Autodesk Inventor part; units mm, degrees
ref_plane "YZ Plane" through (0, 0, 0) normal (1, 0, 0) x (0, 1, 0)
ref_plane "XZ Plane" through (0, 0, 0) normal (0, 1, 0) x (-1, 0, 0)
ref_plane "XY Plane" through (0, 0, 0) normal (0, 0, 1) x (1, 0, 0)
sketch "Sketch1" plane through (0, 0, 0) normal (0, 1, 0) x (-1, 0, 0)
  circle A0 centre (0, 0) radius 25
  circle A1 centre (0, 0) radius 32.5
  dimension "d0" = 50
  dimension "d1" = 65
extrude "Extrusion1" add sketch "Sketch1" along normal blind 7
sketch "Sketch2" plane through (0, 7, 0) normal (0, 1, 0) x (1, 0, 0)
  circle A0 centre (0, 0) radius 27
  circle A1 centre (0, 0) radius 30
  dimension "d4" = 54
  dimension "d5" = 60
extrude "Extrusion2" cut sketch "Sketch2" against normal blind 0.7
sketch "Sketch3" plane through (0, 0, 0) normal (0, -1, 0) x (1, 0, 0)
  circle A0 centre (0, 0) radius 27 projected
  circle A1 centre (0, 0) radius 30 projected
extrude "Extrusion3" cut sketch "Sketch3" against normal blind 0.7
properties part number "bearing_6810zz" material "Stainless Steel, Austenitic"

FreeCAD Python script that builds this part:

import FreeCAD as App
import Part
import Sketcher

V = App.Vector
Q = App.Units.Quantity

doc = App.newDocument("Part")
body = doc.addObject("PartDesign::Body", "Body")

# Sketch on XZ plane
sketch1 = body.newObject("Sketcher::SketchObject", "Sketch")
sketch1.AttachmentSupport = (doc.getObject("XZ_Plane"), [""])
sketch1.MapMode = "FlatFace"
sketch1.addGeometry([
    Part.Circle(V(0, 0, 0), V(0, 0, 1), 32.5),
    Part.Circle(V(0, 0, 0), V(0, 0, 1), 25),
], False)
sketch1.addConstraint([
    Sketcher.Constraint("Coincident", 0, 3, -1, 1),
    Sketcher.Constraint("Coincident", 1, 3, -1, 1),
    Sketcher.Constraint("Diameter", 0, Q("65 mm")),
    Sketcher.Constraint("Diameter", 1, Q("50 mm")),
])
pad1 = body.newObject("PartDesign::Pad", "Pad")
pad1.Profile = sketch1
pad1.Length = 7
pad1.Reversed = True

# Sketch on XZ plane
sketch2 = body.newObject("Sketcher::SketchObject", "Sketch001")
sketch2.AttachmentSupport = (doc.getObject("XZ_Plane"), [""])
sketch2.MapMode = "FlatFace"
sketch2.AttachmentOffset = App.Placement(V(0, 0, -7), App.Rotation())
sketch2.addGeometry([
    Part.Circle(V(0, 0, 0), V(0, 0, 1), 30),
    Part.Circle(V(0, 0, 0), V(0, 0, 1), 27),
], False)
sketch2.addConstraint([
    Sketcher.Constraint("Coincident", 0, 3, -1, 1),
    Sketcher.Constraint("Coincident", 1, 3, -1, 1),
    Sketcher.Constraint("Diameter", 0, Q("60 mm")),
    Sketcher.Constraint("Diameter", 1, Q("54 mm")),
])
pocket1 = body.newObject("PartDesign::Pocket", "Pocket")
pocket1.Profile = sketch2
pocket1.Length = 0.7
pocket1.Reversed = True

# Sketch on XZ plane
sketch3 = body.newObject("Sketcher::SketchObject", "Sketch002")
sketch3.AttachmentSupport = (doc.getObject("XZ_Plane"), [""])
sketch3.MapMode = "FlatFace"
sketch3.addGeometry([
    Part.Circle(V(0, 0, 0), V(0, 0, 1), 30),
    Part.Circle(V(0, 0, 0), V(0, 0, 1), 27),
], False)
sketch3.addConstraint([
    Sketcher.Constraint("Coincident", 0, 3, -1, 1),
    Sketcher.Constraint("Coincident", 1, 3, -1, 1),
    Sketcher.Constraint("Diameter", 0, Q("60 mm")),
    Sketcher.Constraint("Diameter", 1, Q("54 mm")),
])
pocket2 = body.newObject("PartDesign::Pocket", "Pocket001")
pocket2.Profile = sketch3
pocket2.Length = 0.7

doc.recompute()
